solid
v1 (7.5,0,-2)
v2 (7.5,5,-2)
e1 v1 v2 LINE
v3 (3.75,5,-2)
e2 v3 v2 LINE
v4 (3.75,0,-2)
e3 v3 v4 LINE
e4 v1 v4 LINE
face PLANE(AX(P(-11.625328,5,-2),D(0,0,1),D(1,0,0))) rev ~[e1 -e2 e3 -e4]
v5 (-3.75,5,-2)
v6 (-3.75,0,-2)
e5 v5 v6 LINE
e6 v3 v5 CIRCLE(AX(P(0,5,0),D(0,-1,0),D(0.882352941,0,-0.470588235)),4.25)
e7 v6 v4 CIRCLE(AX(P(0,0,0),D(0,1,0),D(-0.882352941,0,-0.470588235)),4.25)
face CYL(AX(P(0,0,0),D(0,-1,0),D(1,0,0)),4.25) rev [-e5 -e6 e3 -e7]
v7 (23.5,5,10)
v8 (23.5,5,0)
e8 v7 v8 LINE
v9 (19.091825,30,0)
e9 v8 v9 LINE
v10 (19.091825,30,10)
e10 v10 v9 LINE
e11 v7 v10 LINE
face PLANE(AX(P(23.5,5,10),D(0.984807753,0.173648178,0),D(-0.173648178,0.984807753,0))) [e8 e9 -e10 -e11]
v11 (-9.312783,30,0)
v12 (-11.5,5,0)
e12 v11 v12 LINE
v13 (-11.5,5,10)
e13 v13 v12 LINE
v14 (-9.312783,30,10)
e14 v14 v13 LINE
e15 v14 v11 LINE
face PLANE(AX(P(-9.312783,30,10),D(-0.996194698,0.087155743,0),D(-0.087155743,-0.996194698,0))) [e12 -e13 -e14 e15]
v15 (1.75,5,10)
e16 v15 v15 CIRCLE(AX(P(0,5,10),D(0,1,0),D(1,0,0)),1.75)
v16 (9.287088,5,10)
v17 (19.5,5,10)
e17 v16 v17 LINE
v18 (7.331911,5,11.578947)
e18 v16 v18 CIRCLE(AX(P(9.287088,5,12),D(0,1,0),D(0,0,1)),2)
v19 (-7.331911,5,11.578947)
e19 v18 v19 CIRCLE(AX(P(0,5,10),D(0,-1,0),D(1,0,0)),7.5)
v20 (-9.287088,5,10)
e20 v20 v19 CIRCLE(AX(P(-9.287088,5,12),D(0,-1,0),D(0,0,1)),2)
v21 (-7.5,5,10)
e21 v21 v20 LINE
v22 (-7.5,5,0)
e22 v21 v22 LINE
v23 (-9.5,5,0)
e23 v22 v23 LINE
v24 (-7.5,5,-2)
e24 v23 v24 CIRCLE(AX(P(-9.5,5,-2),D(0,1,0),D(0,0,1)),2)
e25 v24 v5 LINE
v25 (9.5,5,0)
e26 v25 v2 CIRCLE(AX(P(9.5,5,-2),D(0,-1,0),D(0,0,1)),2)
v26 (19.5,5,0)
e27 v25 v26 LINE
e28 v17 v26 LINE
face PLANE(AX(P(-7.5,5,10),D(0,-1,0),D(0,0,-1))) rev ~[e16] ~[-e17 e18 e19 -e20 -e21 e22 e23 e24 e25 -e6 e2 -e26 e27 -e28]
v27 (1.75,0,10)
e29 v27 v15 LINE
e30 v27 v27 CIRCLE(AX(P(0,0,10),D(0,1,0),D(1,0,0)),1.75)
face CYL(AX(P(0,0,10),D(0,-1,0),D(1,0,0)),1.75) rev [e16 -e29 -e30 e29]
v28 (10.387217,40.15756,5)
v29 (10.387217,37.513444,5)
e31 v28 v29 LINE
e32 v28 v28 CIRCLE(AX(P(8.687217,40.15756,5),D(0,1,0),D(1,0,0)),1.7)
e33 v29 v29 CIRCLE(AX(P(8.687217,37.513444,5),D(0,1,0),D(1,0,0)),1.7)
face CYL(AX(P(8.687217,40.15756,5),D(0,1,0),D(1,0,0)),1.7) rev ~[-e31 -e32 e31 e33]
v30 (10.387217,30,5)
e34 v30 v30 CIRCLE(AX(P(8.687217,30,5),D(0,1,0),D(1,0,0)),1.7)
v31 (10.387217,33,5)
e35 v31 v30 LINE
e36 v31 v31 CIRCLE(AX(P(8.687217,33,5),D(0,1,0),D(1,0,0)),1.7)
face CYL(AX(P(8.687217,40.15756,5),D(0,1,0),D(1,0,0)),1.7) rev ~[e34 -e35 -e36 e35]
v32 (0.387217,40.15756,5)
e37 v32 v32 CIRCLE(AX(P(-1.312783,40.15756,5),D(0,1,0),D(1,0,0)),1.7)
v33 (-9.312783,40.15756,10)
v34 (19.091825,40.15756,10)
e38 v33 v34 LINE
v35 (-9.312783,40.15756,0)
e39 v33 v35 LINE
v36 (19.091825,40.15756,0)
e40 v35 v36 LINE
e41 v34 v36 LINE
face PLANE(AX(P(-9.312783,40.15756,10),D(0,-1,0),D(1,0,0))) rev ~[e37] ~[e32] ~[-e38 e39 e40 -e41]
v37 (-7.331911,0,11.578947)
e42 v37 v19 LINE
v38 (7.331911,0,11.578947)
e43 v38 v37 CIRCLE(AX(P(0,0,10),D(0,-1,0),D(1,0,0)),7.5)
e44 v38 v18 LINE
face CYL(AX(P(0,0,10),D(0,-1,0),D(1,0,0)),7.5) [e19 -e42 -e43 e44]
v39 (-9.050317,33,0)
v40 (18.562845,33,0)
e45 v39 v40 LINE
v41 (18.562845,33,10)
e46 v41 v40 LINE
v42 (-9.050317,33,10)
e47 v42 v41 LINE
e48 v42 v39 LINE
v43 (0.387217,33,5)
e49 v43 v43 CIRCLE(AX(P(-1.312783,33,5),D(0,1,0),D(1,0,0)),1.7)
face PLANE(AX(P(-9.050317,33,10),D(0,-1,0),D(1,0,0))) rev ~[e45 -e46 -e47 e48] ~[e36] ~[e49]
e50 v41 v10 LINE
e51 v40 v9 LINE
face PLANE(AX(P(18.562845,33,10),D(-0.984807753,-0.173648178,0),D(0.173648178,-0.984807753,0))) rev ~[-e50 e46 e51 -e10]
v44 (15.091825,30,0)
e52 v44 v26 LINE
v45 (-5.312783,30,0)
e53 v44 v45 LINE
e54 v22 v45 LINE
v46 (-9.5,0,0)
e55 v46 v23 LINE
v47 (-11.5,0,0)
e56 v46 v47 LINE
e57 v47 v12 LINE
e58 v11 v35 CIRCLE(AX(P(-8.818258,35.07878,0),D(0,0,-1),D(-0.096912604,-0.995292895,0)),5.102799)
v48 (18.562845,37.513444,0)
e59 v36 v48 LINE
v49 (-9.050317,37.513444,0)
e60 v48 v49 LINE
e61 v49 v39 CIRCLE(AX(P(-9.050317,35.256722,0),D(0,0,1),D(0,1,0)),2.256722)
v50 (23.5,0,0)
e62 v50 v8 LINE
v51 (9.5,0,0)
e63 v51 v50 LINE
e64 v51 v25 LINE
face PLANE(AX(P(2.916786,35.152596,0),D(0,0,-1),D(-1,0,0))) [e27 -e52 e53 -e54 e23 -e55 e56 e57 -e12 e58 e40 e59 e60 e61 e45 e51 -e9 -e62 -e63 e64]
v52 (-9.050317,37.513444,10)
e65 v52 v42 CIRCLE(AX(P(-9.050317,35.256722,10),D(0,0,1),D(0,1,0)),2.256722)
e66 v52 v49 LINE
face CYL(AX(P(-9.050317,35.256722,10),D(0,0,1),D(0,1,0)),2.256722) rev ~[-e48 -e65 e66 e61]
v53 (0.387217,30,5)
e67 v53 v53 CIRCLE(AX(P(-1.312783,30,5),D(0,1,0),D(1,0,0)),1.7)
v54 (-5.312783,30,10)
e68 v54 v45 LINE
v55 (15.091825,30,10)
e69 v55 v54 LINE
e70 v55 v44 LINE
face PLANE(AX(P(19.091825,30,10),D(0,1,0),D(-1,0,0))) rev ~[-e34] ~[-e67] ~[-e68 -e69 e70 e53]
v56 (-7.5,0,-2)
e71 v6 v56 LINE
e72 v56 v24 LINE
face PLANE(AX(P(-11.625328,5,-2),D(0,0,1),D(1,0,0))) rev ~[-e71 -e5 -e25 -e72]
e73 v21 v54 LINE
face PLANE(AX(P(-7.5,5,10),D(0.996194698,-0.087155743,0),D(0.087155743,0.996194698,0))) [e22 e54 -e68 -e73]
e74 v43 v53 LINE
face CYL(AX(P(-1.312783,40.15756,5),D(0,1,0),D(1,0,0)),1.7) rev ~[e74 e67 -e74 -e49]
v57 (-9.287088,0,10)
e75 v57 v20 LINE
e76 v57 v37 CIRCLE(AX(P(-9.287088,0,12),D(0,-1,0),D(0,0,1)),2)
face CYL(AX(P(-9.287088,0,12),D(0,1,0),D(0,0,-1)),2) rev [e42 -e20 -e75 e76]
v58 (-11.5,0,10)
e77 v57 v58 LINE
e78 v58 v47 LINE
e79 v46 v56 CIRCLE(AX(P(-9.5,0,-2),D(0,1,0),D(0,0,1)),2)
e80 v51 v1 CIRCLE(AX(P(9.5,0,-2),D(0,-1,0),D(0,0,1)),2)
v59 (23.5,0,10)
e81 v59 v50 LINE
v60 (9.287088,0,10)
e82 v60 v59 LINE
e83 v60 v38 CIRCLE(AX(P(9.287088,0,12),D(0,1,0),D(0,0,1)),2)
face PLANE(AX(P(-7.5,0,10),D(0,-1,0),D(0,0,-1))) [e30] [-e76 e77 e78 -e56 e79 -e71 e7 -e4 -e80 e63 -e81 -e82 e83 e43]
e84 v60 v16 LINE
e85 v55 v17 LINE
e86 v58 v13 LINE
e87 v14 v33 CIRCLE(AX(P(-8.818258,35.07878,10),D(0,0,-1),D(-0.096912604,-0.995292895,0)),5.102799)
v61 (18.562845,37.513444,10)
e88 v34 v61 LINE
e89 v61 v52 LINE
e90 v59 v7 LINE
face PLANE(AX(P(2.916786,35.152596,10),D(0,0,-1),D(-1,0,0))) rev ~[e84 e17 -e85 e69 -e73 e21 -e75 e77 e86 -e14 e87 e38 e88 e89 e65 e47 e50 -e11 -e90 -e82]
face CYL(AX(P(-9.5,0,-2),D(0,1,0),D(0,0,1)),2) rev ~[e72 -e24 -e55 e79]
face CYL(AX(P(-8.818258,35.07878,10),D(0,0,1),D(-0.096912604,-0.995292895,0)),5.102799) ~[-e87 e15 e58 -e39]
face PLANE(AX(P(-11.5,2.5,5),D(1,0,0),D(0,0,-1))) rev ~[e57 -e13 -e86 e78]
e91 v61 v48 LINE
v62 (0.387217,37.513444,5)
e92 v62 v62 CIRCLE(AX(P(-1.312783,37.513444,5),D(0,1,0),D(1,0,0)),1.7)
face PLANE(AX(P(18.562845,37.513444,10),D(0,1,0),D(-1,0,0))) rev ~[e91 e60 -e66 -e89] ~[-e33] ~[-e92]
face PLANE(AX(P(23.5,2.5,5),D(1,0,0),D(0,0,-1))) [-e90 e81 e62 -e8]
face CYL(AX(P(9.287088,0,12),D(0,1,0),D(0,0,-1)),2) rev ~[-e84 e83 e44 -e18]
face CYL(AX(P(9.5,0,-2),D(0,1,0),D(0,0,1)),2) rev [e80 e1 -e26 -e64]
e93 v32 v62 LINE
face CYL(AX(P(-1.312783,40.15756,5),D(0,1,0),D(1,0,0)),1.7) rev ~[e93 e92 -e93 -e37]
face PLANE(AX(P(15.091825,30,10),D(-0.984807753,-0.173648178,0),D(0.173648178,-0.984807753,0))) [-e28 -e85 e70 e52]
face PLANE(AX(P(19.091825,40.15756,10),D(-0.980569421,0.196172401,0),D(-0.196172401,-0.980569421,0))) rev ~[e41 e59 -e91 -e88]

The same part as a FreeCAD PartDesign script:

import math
import FreeCAD as App
import Part
import Sketcher
from FreeCAD import Vector
Q = App.Units.Quantity


def edges_at(feature, points):
    """Names of the edges that pass closest to the given points."""
    edges = feature.Shape.Edges
    near = lambda p: min(range(len(edges)), key=lambda i: edges[i].distToShape(Part.Vertex(*p))[0])
    return sorted({f"Edge{near(p) + 1}" for p in points})


def add_polygon(sketch, points):
    """Adds a closed chain of lines whose ends are joined by coincident constraints."""
    first, n = sketch.GeometryCount, len(points)
    for a, b in zip(points, points[1:] + points[:1]):
        sketch.addGeometry(Part.LineSegment(App.Vector(*a, 0), App.Vector(*b, 0)), False)
    for i in range(n):
        sketch.addConstraint(Sketcher.Constraint("Coincident", first + i, 2, first + (i + 1) % n, 1))

doc = App.newDocument("Part")
body = doc.addObject("PartDesign::Body", "Body")

sketch1 = body.newObject("Sketcher::SketchObject", "Sketch")
sketch1.AttachmentSupport = (doc.getObject("XZ_Plane"), [""])
sketch1.MapMode = "FlatFace"
sketch1.addGeometry([
    Part.LineSegment(Vector(-7.5, -10, 0), Vector(-7.5, 10, 0)),
    Part.ArcOfCircle(Part.Circle(Vector(0, 10, 0), Vector(0, 0, 1), 7.5), math.radians(0), math.radians(180)),
    Part.LineSegment(Vector(7.5, 10, 0), Vector(7.5, -10, 0)),
    Part.ArcOfCircle(Part.Circle(Vector(0, -10, 0), Vector(0, 0, 1), 7.5), math.radians(180), math.radians(360)),
    Part.Circle(Vector(0, 10, 0), Vector(0, 0, 1), 1.8),
    Part.Circle(Vector(0, 0, 0), Vector(0, 0, 1), 4.2),
    Part.Circle(Vector(0, -10, 0), Vector(0, 0, 1), 1.8),
], False)
sketch1.addConstraint([
    Sketcher.Constraint("Tangent", 0, 2, 1, 2),
    Sketcher.Constraint("Tangent", 1, 1, 2, 1),
    Sketcher.Constraint("Tangent", 2, 2, 3, 2),
    Sketcher.Constraint("Tangent", 3, 1, 0, 1),
    Sketcher.Constraint("Vertical", 0),
    Sketcher.Constraint("Vertical", 2),
    Sketcher.Constraint("Coincident", 5, 3, -1, 1),
    Sketcher.Constraint("Coincident", 4, 3, 1, 3),
    Sketcher.Constraint("Coincident", 6, 3, 3, 3),
    Sketcher.Constraint("Equal", 4, 6),
    Sketcher.Constraint("Symmetric", 1, 3, 3, 3, -1, 1),
    Sketcher.Constraint("Diameter", 4, 3.5),
    Sketcher.Constraint("Diameter", 5, 8.5),
    Sketcher.Constraint("Radius", 1, 7.5),
    Sketcher.Constraint("DistanceY", 0, 1, 0, 2, 20.0),
])
pad1 = body.newObject("PartDesign::Pad", "Pad")
pad1.Profile = sketch1
pad1.Length = 5
pad1.Reversed = True

sketch2 = body.newObject("Sketcher::SketchObject", "Sketch001")
sketch2.AttachmentSupport = (doc.getObject("YZ_Plane"), [""])
sketch2.MapMode = "FlatFace"
sketch2.AttachmentOffset = App.Placement(Vector(0, 0, 7.5), App.Rotation())
add_polygon(sketch2, [(5, 10), (0, 10), (0, 0), (5, 0)])
sketch2.addConstraint([
    Sketcher.Constraint("Horizontal", 0),
    Sketcher.Constraint("Vertical", 1),
    Sketcher.Constraint("Horizontal", 2),
    Sketcher.Constraint("Vertical", 3),
    Sketcher.Constraint("Coincident", 1, 2, -1, 1),
    Sketcher.Constraint("DistanceX", 0, 2, 0, 1, 5.0),
    Sketcher.Constraint("DistanceY", 1, 2, 1, 1, 10.0),
])
pad2 = body.newObject("PartDesign::Pad", "Pad001")
pad2.Profile = sketch2
pad2.Length = 16

sketch3 = body.newObject("Sketcher::SketchObject", "Sketch002")
sketch3.AttachmentSupport = (doc.getObject("YZ_Plane"), [""])
sketch3.MapMode = "FlatFace"
sketch3.AttachmentOffset = App.Placement(Vector(0, 0, -7.5), App.Rotation())
add_polygon(sketch3, [(5, 10), (0, 10), (0, 0), (5, 0)])
sketch3.addConstraint([
    Sketcher.Constraint("Horizontal", 0),
    Sketcher.Constraint("Vertical", 1),
    Sketcher.Constraint("Horizontal", 2),
    Sketcher.Constraint("Vertical", 3),
    Sketcher.Constraint("Coincident", 1, 2, -1, 1),
    Sketcher.Constraint("DistanceX", 0, 2, 0, 1, 5.0),
    Sketcher.Constraint("DistanceY", 1, 2, 1, 1, 10.0),
])
pad3 = body.newObject("PartDesign::Pad", "Pad002")
pad3.Profile = sketch3
pad3.Length = 4
pad3.Reversed = True

sketch4 = body.newObject("Sketcher::SketchObject", "Sketch003")
sketch4.AttachmentSupport = (doc.getObject("XY_Plane"), [""])
sketch4.MapMode = "FlatFace"
sketch4.AttachmentOffset = App.Placement(Vector(0, 0, 10), App.Rotation())
add_polygon(sketch4, [(-9.3, 30), (-11.5, 5), (-7.5, 5), (-5.3, 30)])
add_polygon(sketch4, [(15.1, 30), (19.5, 5), (23.5, 5), (19.1, 30)])
sketch4.addConstraint([
    Sketcher.Constraint("Horizontal", 1),
    Sketcher.Constraint("Horizontal", 3),
    Sketcher.Constraint("Horizontal", 5),
    Sketcher.Constraint("Horizontal", 7),
    Sketcher.Constraint("Parallel", 0, 2),
    Sketcher.Constraint("Parallel", 4, 6),
    Sketcher.Constraint("Horizontal", 1, 2, 4, 2),
    Sketcher.Constraint("Horizontal", 3, 2, 6, 2),
    Sketcher.Constraint("Equal", 3, 5),
    Sketcher.Constraint("DistanceX", 1, 1, 1, 2, 4.0),
    Sketcher.Constraint("Angle", 0, Q("-95 deg")),
    Sketcher.Constraint("Angle", 4, Q("-80 deg")),
    Sketcher.Constraint("DistanceY", -1, 1, 0, 2, 5.0),
    Sketcher.Constraint("DistanceY", -1, 1, 2, 2, 30.0),
    Sketcher.Constraint("DistanceX", 1, 2, 4, 2, 27.0),
    Sketcher.Constraint("DistanceX", 0, 2, -1, 1, 11.5),
])
pad4 = body.newObject("PartDesign::Pad", "Pad003")
pad4.Profile = sketch4
pad4.Length = 10
pad4.Reversed = True

sketch5 = body.newObject("Sketcher::SketchObject", "Sketch004")
sketch5.AttachmentSupport = (doc.getObject("XY_Plane"), [""])
sketch5.MapMode = "FlatFace"
sketch5.AttachmentOffset = App.Placement(Vector(0, 0, 10), App.Rotation())
sketch5.addGeometry([
    Part.LineSegment(Vector(-9.3, 30, 0), Vector(19.1, 30, 0)),
    Part.LineSegment(Vector(19.1, 30, 0), Vector(18.6, 33, 0)),
    Part.LineSegment(Vector(18.6, 33, 0), Vector(-9.1, 33, 0)),
    Part.ArcOfCircle(Part.Circle(Vector(-9.1, 35.3, 0), Vector(0, 0, 1), 2.3), math.radians(90), math.radians(270)),
    Part.LineSegment(Vector(-9.1, 37.5, 0), Vector(18.6, 37.5, 0)),
    Part.LineSegment(Vector(18.6, 37.5, 0), Vector(19.1, 40.2, 0)),
    Part.LineSegment(Vector(19.1, 40.2, 0), Vector(-9.3, 40.2, 0)),
    Part.ArcOfCircle(Part.Circle(Vector(-8.8, 35.1, 0), Vector(0, 0, 1), 5.1), math.radians(96), math.radians(264)),
], False)
sketch5.addConstraint([
    Sketcher.Constraint("Coincident", 0, 2, 1, 1),
    Sketcher.Constraint("Coincident", 1, 2, 2, 1),
    Sketcher.Constraint("Tangent", 2, 2, 3, 2),
    Sketcher.Constraint("Tangent", 3, 1, 4, 1),
    Sketcher.Constraint("Coincident", 4, 2, 5, 1),
    Sketcher.Constraint("Coincident", 5, 2, 6, 1),
    Sketcher.Constraint("Coincident", 6, 2, 7, 1),
    Sketcher.Constraint("Coincident", 7, 2, 0, 1),
    Sketcher.Constraint("Horizontal", 0),
    Sketcher.Constraint("Horizontal", 2),
    Sketcher.Constraint("Horizontal", 4),
    Sketcher.Constraint("Horizontal", 6),
    Sketcher.Constraint("Vertical", 1, 2, 4, 2),
    Sketcher.Constraint("Vertical", 0, 2, 5, 2),
    Sketcher.Constraint("Vertical", 6, 2, 7, 2),
    Sketcher.Constraint("Angle", 1, Q("100 deg")),
    Sketcher.Constraint("DistanceY", -1, 1, 0, 2, 30.0),
    Sketcher.Constraint("DistanceY", -1, 1, 1, 2, 33.0),
    Sketcher.Constraint("Radius", 7, 5.102799),
    Sketcher.Constraint("Radius", 3, 2.256722),
    Sketcher.Constraint("DistanceX", 0, 1, 0, 2, 28.404609),
    Sketcher.Constraint("DistanceX", 2, 2, 2, 1, 27.613162),
    Sketcher.Constraint("Distance", 5, 2.696511),
    Sketcher.Constraint("DistanceX", 3, 3, -1, 1, 9.050317),
])
pad5 = body.newObject("PartDesign::Pad", "Pad004")
pad5.Profile = sketch5
pad5.Length = 10
pad5.Reversed = True
doc.recompute()

fillet = body.newObject("PartDesign::Fillet", "Fillet")
fillet.Base = (pad5, edges_at(pad5, [
    (7.5, 2.5, 0),
    (-7.5, 2.5, 0),
    (-7.5, 2.5, 10),
    (7.5, 2.5, 10),
]))
fillet.Radius = 2

sketch6 = body.newObject("Sketcher::SketchObject", "Sketch005")
sketch6.AttachmentSupport = (doc.getObject("XZ_Plane"), [""])
sketch6.MapMode = "FlatFace"
sketch6.AttachmentOffset = App.Placement(Vector(0, 0, -5), App.Rotation())
add_polygon(sketch6, [(-12, -19), (-12, -2), (12, -2), (12, -19)])
sketch6.addConstraint([
    Sketcher.Constraint("Vertical", 0),
    Sketcher.Constraint("Horizontal", 1),
    Sketcher.Constraint("Vertical", 2),
    Sketcher.Constraint("Horizontal", 3),
    Sketcher.Constraint("DistanceY", 0, 2, -1, 1, 2.0),
    Sketcher.Constraint("DistanceX", 1, 1, 1, 2, 24.049628),
    Sketcher.Constraint("DistanceX", -1, 1, 1, 2, 12.4243),
    Sketcher.Constraint("DistanceY", 0, 1, 0, 2, 16.756853),
])
pocket1 = body.newObject("PartDesign::Pocket", "Pocket")
pocket1.Profile = sketch6
pocket1.Type = "ThroughAll"
pocket1.Reversed = True

sketch7 = body.newObject("Sketcher::SketchObject", "Sketch006")
sketch7.AttachmentSupport = (doc.getObject("XZ_Plane"), [""])
sketch7.MapMode = "FlatFace"
sketch7.AttachmentOffset = App.Placement(Vector(0, 0, -40.15756), App.Rotation())
sketch7.addGeometry([
    Part.Circle(Vector(-1.3, 5, 0), Vector(0, 0, 1), 1.7),
    Part.Circle(Vector(8.7, 5, 0), Vector(0, 0, 1), 1.7),
], False)
sketch7.addConstraint([
    Sketcher.Constraint("Equal", 0, 1),
    Sketcher.Constraint("Horizontal", 0, 3, 1, 3),
    Sketcher.Constraint("Diameter", 0, 3.4),
    Sketcher.Constraint("DistanceY", -1, 1, 0, 3, 5.0),
    Sketcher.Constraint("DistanceX", 0, 3, 1, 3, 10.0),
    Sketcher.Constraint("DistanceX", 0, 3, -1, 1, 1.312783),
])
pocket2 = body.newObject("PartDesign::Pocket", "Pocket001")
pocket2.Profile = sketch7
pocket2.Length = 10.15756
pocket2.Reversed = True

doc.recompute()
